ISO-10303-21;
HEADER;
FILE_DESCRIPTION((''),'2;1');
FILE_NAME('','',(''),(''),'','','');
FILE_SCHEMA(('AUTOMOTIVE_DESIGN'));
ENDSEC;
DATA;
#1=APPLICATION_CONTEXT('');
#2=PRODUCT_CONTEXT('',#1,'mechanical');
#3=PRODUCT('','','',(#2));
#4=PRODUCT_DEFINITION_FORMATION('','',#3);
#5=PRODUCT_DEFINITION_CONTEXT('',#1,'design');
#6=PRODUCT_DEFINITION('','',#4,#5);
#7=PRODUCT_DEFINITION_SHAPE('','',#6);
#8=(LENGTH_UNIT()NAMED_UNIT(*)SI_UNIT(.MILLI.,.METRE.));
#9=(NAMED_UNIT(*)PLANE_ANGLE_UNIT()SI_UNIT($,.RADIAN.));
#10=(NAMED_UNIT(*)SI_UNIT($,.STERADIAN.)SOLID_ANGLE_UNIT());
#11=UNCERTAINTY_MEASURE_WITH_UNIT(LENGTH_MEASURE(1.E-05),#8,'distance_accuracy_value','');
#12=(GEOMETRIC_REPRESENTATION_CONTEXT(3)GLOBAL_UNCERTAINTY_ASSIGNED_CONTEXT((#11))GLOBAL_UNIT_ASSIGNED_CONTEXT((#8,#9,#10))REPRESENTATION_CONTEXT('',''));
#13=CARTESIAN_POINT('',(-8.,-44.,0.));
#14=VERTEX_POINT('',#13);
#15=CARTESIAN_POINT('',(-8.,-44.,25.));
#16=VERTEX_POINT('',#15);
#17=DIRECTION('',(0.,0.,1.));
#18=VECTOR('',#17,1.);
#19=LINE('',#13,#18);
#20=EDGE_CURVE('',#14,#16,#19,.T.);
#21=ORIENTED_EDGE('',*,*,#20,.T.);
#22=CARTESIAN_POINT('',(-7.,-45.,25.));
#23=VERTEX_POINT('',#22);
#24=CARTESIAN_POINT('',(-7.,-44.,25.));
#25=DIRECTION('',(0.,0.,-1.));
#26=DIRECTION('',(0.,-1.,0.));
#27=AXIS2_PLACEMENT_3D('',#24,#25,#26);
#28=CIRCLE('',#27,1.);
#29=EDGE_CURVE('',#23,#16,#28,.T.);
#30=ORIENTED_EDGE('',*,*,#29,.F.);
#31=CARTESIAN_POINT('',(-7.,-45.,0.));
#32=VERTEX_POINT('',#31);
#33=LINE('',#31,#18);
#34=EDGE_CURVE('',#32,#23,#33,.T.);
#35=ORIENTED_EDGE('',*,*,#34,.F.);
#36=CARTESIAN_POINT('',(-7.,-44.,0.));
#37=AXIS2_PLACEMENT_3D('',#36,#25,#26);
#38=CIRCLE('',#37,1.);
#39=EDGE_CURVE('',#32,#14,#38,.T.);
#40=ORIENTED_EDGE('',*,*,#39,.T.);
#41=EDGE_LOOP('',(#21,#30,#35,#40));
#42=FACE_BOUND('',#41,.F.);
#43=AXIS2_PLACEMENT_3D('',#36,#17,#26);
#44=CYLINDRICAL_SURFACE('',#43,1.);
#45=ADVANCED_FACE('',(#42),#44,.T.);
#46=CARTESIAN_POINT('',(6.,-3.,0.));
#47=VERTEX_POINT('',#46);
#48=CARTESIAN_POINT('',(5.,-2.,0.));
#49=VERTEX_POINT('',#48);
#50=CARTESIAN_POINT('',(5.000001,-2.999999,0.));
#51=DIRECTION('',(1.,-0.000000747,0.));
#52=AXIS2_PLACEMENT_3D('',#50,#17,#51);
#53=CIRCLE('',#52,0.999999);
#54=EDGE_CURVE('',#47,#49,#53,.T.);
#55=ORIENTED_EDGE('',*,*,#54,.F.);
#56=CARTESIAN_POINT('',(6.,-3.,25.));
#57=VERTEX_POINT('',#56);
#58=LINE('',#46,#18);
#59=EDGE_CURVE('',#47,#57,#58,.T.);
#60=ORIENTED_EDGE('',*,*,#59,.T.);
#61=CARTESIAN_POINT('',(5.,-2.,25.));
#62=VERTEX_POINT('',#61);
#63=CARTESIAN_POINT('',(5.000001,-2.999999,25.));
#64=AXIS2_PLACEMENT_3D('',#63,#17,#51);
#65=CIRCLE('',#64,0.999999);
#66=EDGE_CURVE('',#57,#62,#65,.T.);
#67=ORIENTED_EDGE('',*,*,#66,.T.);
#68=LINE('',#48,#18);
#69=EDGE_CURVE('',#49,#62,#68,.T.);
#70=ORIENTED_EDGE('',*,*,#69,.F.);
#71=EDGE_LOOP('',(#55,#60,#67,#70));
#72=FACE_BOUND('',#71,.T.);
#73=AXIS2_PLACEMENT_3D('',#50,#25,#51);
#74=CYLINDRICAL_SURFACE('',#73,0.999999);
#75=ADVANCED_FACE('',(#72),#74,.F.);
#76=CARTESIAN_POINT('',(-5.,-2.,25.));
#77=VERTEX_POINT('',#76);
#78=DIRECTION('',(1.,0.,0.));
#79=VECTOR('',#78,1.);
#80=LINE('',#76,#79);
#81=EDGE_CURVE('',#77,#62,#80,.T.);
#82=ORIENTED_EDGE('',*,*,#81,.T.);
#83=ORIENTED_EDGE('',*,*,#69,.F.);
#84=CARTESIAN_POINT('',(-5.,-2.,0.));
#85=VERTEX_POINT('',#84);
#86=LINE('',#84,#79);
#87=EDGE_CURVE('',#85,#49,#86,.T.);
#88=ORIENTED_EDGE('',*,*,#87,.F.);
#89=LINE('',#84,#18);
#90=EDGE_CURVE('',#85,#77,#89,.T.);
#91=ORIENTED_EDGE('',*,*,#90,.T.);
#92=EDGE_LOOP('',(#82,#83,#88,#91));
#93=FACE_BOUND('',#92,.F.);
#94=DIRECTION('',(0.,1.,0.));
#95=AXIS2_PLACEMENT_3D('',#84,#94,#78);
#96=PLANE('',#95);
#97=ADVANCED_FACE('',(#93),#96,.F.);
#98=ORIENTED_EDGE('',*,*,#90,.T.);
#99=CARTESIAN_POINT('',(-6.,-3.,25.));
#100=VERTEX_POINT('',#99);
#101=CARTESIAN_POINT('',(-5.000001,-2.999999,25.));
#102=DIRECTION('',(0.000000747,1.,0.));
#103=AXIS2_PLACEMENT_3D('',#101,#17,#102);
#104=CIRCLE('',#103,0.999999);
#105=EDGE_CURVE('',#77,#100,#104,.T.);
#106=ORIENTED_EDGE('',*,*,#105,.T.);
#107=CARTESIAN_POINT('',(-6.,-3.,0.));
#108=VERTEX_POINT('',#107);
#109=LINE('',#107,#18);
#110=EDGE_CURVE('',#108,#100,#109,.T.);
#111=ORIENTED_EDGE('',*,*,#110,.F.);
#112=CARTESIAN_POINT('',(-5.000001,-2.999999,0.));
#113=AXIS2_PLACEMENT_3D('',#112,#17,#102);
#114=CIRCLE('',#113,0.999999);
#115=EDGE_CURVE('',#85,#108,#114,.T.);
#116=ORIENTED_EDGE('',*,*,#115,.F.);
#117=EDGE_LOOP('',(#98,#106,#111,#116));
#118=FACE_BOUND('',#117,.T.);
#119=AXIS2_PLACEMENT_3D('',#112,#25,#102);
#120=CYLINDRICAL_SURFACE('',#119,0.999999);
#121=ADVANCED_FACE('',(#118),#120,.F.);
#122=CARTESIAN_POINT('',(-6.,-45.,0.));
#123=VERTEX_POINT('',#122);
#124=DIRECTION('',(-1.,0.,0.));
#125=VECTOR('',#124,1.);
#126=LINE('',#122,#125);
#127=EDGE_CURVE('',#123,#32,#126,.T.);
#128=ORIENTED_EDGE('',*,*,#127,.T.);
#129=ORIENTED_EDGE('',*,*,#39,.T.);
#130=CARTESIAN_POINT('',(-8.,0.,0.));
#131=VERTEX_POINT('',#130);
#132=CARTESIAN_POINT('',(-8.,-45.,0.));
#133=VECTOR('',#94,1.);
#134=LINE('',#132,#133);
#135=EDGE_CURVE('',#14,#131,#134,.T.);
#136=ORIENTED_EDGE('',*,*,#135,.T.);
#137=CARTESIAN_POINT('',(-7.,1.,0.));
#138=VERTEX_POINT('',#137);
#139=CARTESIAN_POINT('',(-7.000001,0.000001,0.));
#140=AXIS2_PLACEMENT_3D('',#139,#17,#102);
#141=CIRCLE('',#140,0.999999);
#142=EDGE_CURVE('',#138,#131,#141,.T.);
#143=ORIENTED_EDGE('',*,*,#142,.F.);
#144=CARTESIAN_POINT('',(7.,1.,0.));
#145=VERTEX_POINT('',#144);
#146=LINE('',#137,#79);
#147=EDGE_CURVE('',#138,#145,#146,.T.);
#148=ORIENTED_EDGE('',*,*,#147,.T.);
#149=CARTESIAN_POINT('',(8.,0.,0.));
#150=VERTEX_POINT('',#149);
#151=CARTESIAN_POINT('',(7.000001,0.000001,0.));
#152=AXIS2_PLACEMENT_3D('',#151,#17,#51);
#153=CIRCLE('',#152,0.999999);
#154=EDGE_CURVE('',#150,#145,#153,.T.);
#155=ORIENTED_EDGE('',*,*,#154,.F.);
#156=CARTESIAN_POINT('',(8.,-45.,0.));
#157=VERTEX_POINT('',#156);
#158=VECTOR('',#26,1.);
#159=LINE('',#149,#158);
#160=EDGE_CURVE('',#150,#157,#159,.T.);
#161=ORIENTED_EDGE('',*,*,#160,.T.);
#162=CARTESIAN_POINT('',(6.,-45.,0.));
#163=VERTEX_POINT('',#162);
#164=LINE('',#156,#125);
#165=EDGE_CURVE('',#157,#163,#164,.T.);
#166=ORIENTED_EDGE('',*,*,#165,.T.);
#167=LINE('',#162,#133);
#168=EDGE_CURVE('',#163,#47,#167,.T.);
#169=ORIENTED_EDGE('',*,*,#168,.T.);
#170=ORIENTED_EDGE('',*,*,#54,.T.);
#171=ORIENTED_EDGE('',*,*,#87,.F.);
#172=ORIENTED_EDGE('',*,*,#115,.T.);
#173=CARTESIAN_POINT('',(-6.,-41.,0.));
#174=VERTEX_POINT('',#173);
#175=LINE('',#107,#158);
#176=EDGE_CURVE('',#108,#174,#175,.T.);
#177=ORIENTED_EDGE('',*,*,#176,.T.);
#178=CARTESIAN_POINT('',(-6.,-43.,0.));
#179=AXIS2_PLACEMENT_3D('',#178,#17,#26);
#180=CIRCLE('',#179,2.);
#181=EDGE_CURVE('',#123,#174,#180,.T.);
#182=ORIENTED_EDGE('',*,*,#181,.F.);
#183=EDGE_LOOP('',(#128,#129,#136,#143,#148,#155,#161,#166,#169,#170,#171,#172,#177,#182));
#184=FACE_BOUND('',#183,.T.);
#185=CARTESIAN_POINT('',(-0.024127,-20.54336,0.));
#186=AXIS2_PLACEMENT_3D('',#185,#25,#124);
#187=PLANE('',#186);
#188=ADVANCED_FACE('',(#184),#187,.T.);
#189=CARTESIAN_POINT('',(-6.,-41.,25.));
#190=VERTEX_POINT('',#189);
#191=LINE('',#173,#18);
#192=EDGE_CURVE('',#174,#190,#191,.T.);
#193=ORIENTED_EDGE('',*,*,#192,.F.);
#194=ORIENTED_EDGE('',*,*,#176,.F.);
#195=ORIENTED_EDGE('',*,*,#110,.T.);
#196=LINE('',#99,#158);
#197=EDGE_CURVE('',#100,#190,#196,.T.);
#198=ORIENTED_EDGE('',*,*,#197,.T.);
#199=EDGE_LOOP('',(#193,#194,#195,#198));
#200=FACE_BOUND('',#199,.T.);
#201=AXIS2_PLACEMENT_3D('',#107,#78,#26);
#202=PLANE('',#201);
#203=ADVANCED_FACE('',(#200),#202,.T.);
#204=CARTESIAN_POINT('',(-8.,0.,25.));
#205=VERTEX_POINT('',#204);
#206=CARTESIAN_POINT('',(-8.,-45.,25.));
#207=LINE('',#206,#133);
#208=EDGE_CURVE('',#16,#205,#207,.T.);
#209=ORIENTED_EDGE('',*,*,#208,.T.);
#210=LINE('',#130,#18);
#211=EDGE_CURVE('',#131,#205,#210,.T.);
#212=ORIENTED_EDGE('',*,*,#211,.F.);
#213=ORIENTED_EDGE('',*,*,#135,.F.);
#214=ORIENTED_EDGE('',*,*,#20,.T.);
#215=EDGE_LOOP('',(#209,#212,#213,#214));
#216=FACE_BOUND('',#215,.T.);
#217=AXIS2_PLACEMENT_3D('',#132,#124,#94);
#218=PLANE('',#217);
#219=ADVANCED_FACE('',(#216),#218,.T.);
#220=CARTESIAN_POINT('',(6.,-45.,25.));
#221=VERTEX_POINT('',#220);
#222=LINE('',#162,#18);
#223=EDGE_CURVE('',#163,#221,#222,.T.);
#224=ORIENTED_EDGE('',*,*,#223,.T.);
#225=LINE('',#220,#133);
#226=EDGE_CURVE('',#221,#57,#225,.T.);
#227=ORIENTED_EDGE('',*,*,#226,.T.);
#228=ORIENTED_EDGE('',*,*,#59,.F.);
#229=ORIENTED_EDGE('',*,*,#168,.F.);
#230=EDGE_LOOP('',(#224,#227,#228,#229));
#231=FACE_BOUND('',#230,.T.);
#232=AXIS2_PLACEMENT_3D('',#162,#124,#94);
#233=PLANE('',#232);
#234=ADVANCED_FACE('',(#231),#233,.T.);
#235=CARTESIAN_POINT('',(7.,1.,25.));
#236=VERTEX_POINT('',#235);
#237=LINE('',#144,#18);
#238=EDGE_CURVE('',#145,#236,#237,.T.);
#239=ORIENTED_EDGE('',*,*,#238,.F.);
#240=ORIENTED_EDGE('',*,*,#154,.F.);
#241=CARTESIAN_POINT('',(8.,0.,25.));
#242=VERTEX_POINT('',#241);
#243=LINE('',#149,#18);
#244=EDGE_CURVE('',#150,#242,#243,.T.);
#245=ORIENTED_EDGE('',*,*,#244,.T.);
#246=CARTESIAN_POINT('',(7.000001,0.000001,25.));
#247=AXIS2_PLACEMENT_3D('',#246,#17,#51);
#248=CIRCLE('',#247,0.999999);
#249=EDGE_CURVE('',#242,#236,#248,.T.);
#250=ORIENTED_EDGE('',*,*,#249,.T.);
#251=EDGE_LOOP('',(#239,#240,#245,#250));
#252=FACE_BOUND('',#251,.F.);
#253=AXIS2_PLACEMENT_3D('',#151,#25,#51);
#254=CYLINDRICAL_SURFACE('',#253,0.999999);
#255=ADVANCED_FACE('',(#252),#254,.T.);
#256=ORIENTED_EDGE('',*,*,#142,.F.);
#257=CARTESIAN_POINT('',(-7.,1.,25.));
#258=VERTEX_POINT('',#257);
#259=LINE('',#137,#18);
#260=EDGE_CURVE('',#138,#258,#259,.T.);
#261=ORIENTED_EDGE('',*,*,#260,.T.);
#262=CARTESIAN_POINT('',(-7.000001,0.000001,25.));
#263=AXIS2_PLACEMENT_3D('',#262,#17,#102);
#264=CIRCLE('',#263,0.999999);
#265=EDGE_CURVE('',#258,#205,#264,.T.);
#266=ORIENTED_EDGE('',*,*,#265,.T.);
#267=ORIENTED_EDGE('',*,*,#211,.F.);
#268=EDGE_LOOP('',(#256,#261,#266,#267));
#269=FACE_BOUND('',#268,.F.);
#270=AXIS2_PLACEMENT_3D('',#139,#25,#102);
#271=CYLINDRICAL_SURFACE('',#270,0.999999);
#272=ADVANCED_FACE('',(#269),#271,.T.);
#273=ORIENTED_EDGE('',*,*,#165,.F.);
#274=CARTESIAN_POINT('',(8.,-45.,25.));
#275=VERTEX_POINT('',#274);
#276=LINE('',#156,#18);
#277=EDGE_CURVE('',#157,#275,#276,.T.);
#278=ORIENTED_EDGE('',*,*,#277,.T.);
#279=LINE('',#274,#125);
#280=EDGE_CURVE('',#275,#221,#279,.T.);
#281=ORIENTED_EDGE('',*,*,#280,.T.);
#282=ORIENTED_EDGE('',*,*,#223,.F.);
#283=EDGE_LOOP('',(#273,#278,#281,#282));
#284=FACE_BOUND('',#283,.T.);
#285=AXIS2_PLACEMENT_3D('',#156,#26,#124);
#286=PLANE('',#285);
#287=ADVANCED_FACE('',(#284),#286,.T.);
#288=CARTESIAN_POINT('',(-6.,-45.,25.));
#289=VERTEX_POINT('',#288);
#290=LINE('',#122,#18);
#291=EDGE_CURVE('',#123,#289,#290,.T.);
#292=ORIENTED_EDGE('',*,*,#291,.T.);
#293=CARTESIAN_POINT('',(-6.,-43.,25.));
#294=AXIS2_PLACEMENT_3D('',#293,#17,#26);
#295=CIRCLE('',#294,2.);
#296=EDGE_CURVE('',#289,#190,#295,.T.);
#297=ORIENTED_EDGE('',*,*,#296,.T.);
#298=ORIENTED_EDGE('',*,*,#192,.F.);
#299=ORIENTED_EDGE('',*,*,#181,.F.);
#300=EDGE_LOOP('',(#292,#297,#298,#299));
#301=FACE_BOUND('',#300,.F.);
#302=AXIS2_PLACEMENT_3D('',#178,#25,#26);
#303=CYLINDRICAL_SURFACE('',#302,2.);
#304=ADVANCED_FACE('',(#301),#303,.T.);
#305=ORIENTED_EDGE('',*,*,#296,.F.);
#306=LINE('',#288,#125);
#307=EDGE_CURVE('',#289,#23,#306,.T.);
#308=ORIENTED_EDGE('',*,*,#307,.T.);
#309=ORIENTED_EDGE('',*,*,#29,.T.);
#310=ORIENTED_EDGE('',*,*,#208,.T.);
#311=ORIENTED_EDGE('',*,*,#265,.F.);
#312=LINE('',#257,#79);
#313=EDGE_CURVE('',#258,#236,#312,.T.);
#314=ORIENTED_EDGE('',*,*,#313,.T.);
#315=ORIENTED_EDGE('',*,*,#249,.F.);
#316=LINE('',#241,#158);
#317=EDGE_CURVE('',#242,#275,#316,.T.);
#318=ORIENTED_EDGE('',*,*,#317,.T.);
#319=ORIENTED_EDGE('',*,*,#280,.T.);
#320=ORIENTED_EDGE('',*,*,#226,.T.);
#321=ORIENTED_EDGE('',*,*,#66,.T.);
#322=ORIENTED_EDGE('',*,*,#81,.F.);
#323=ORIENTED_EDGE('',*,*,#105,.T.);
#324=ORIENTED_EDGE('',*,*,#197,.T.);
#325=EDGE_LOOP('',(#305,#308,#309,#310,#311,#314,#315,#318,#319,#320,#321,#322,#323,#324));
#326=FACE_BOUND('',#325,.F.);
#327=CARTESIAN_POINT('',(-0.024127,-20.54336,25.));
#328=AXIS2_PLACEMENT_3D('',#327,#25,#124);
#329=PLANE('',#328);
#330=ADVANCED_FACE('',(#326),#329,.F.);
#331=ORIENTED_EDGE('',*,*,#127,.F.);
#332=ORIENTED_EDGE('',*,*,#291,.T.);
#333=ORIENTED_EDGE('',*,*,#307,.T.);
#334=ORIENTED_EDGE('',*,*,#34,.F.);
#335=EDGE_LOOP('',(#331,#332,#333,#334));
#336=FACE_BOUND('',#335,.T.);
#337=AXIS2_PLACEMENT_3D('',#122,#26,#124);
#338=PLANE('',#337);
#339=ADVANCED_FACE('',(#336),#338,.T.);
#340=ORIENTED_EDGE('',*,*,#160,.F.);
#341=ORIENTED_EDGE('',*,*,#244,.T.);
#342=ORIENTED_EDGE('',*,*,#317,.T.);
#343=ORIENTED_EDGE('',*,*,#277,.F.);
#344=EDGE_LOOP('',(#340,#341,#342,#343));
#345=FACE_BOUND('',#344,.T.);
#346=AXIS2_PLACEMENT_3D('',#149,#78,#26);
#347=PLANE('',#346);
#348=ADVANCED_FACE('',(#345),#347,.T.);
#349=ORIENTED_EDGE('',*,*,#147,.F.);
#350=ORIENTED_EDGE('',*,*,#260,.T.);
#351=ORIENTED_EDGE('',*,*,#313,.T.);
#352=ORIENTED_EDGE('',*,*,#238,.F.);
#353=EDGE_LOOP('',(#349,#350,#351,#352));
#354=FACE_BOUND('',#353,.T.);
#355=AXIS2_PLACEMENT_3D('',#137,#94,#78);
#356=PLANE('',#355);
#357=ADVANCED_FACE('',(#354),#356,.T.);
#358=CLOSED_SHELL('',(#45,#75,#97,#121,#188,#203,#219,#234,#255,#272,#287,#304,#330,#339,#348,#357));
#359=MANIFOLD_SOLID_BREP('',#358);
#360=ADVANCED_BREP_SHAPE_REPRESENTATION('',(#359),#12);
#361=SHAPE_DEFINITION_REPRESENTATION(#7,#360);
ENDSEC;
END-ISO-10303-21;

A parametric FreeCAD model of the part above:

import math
import FreeCAD as App
import Part
import Sketcher

V = App.Vector


def edges_at(feature, points):
    """Names of the edges that pass closest to the given points."""
    edges = feature.Shape.Edges
    near = lambda p: min(range(len(edges)), key=lambda i: edges[i].distToShape(Part.Vertex(*p))[0])
    return sorted({f"Edge{near(p) + 1}" for p in points})

doc = App.newDocument("Part")
body = doc.addObject("PartDesign::Body", "Body")

# Sketch on XY plane
sketch1 = doc.addObject("Sketcher::SketchObject", "Sketch")
body.addObject(sketch1)
sketch1.AttachmentSupport = (doc.XY_Plane, [""])
sketch1.MapMode = "FlatFace"
sketch1.addGeometry(Part.LineSegment(V(8, -45, 0), V(8, 0, 0)), False)
sketch1.addGeometry(Part.ArcOfCircle(Part.Circle(V(7.000001, 0.000001, 0), V(0, 0, 1), 0.999999), math.radians(-0.000043), math.radians(90.000043)), False)
sketch1.addGeometry(Part.LineSegment(V(7, 1, 0), V(-7, 1, 0)), False)
sketch1.addGeometry(Part.ArcOfCircle(Part.Circle(V(-7.000001, 0.000001, 0), V(0, 0, 1), 0.999999), math.radians(89.999957), math.radians(180.000043)), False)
sketch1.addGeometry(Part.LineSegment(V(-8, 0, 0), V(-8, -45, 0)), False)
sketch1.addGeometry(Part.LineSegment(V(-8, -45, 0), V(-6, -45, 0)), False)
sketch1.addGeometry(Part.ArcOfCircle(Part.Circle(V(-6, -43, 0), V(0, 0, 1), 2), math.radians(-90), math.radians(90)), False)
sketch1.addGeometry(Part.LineSegment(V(-6, -41, 0), V(-6, -3, 0)), False)
sketch1.addGeometry(Part.ArcOfCircle(Part.Circle(V(-5.000001, -2.999999, 0), V(0, 0, 1), 0.999999), math.radians(89.999957), math.radians(180.000043)), False)
sketch1.addGeometry(Part.LineSegment(V(-5, -2, 0), V(5, -2, 0)), False)
sketch1.addGeometry(Part.ArcOfCircle(Part.Circle(V(5.000001, -2.999999, 0), V(0, 0, 1), 0.999999), math.radians(-0.000043), math.radians(90.000043)), False)
sketch1.addGeometry(Part.LineSegment(V(6, -3, 0), V(6, -45, 0)), False)
sketch1.addGeometry(Part.LineSegment(V(6, -45, 0), V(8, -45, 0)), False)
sketch1.addConstraint(Sketcher.Constraint("Tangent", 0, 2, 1, 1))
sketch1.addConstraint(Sketcher.Constraint("Tangent", 1, 2, 2, 1))
sketch1.addConstraint(Sketcher.Constraint("Tangent", 2, 2, 3, 1))
sketch1.addConstraint(Sketcher.Constraint("Tangent", 3, 2, 4, 1))
sketch1.addConstraint(Sketcher.Constraint("Coincident", 4, 2, 5, 1))
sketch1.addConstraint(Sketcher.Constraint("Tangent", 5, 2, 6, 1))
sketch1.addConstraint(Sketcher.Constraint("Coincident", 6, 2, 7, 1))
sketch1.addConstraint(Sketcher.Constraint("Tangent", 7, 2, 8, 2))
sketch1.addConstraint(Sketcher.Constraint("Tangent", 8, 1, 9, 1))
sketch1.addConstraint(Sketcher.Constraint("Tangent", 9, 2, 10, 2))
sketch1.addConstraint(Sketcher.Constraint("Tangent", 10, 1, 11, 1))
sketch1.addConstraint(Sketcher.Constraint("Coincident", 11, 2, 12, 1))
sketch1.addConstraint(Sketcher.Constraint("Coincident", 12, 2, 0, 1))
sketch1.addConstraint(Sketcher.Constraint("Vertical", 0))
sketch1.addConstraint(Sketcher.Constraint("Horizontal", 2))
sketch1.addConstraint(Sketcher.Constraint("Vertical", 4))
sketch1.addConstraint(Sketcher.Constraint("Horizontal", 5))
sketch1.addConstraint(Sketcher.Constraint("Vertical", 7))
sketch1.addConstraint(Sketcher.Constraint("Horizontal", 9))
sketch1.addConstraint(Sketcher.Constraint("Vertical", 11))
sketch1.addConstraint(Sketcher.Constraint("Horizontal", 12))
sketch1.addConstraint(Sketcher.Constraint("Equal", 1, 3))
sketch1.addConstraint(Sketcher.Constraint("Equal", 3, 8))
sketch1.addConstraint(Sketcher.Constraint("Equal", 8, 10))
sketch1.addConstraint(Sketcher.Constraint("Symmetric", 1, 3, 3, 3, -1, 1))
sketch1.addConstraint(Sketcher.Constraint("Symmetric", 5, 2, 11, 2, -2))
sketch1.addConstraint(Sketcher.Constraint("Vertical", 5, 2, 6, 2))
sketch1.addConstraint(Sketcher.Constraint("Radius", 1, 0.999999))
sketch1.addConstraint(Sketcher.Constraint("Radius", 6, 2.0))
sketch1.addConstraint(Sketcher.Constraint("DistanceX", 2, 2, 2, 1, 14.0))
sketch1.addConstraint(Sketcher.Constraint("DistanceX", 5, 1, 5, 2, 2.0))
sketch1.addConstraint(Sketcher.Constraint("DistanceY", 0, 1, 0, 2, 45.0))
sketch1.addConstraint(Sketcher.Constraint("DistanceY", 7, 1, 7, 2, 38.0))
pad1 = doc.addObject("PartDesign::Pad", "Pad")
body.addObject(pad1)
pad1.Profile = sketch1
pad1.Length = 25
doc.recompute()

fillet = doc.addObject("PartDesign::Fillet", "Fillet")
body.addObject(fillet)
fillet.Base = (pad1, edges_at(pad1, [(-8, -45, 12.5)]))
fillet.Radius = 1

doc.recompute()
